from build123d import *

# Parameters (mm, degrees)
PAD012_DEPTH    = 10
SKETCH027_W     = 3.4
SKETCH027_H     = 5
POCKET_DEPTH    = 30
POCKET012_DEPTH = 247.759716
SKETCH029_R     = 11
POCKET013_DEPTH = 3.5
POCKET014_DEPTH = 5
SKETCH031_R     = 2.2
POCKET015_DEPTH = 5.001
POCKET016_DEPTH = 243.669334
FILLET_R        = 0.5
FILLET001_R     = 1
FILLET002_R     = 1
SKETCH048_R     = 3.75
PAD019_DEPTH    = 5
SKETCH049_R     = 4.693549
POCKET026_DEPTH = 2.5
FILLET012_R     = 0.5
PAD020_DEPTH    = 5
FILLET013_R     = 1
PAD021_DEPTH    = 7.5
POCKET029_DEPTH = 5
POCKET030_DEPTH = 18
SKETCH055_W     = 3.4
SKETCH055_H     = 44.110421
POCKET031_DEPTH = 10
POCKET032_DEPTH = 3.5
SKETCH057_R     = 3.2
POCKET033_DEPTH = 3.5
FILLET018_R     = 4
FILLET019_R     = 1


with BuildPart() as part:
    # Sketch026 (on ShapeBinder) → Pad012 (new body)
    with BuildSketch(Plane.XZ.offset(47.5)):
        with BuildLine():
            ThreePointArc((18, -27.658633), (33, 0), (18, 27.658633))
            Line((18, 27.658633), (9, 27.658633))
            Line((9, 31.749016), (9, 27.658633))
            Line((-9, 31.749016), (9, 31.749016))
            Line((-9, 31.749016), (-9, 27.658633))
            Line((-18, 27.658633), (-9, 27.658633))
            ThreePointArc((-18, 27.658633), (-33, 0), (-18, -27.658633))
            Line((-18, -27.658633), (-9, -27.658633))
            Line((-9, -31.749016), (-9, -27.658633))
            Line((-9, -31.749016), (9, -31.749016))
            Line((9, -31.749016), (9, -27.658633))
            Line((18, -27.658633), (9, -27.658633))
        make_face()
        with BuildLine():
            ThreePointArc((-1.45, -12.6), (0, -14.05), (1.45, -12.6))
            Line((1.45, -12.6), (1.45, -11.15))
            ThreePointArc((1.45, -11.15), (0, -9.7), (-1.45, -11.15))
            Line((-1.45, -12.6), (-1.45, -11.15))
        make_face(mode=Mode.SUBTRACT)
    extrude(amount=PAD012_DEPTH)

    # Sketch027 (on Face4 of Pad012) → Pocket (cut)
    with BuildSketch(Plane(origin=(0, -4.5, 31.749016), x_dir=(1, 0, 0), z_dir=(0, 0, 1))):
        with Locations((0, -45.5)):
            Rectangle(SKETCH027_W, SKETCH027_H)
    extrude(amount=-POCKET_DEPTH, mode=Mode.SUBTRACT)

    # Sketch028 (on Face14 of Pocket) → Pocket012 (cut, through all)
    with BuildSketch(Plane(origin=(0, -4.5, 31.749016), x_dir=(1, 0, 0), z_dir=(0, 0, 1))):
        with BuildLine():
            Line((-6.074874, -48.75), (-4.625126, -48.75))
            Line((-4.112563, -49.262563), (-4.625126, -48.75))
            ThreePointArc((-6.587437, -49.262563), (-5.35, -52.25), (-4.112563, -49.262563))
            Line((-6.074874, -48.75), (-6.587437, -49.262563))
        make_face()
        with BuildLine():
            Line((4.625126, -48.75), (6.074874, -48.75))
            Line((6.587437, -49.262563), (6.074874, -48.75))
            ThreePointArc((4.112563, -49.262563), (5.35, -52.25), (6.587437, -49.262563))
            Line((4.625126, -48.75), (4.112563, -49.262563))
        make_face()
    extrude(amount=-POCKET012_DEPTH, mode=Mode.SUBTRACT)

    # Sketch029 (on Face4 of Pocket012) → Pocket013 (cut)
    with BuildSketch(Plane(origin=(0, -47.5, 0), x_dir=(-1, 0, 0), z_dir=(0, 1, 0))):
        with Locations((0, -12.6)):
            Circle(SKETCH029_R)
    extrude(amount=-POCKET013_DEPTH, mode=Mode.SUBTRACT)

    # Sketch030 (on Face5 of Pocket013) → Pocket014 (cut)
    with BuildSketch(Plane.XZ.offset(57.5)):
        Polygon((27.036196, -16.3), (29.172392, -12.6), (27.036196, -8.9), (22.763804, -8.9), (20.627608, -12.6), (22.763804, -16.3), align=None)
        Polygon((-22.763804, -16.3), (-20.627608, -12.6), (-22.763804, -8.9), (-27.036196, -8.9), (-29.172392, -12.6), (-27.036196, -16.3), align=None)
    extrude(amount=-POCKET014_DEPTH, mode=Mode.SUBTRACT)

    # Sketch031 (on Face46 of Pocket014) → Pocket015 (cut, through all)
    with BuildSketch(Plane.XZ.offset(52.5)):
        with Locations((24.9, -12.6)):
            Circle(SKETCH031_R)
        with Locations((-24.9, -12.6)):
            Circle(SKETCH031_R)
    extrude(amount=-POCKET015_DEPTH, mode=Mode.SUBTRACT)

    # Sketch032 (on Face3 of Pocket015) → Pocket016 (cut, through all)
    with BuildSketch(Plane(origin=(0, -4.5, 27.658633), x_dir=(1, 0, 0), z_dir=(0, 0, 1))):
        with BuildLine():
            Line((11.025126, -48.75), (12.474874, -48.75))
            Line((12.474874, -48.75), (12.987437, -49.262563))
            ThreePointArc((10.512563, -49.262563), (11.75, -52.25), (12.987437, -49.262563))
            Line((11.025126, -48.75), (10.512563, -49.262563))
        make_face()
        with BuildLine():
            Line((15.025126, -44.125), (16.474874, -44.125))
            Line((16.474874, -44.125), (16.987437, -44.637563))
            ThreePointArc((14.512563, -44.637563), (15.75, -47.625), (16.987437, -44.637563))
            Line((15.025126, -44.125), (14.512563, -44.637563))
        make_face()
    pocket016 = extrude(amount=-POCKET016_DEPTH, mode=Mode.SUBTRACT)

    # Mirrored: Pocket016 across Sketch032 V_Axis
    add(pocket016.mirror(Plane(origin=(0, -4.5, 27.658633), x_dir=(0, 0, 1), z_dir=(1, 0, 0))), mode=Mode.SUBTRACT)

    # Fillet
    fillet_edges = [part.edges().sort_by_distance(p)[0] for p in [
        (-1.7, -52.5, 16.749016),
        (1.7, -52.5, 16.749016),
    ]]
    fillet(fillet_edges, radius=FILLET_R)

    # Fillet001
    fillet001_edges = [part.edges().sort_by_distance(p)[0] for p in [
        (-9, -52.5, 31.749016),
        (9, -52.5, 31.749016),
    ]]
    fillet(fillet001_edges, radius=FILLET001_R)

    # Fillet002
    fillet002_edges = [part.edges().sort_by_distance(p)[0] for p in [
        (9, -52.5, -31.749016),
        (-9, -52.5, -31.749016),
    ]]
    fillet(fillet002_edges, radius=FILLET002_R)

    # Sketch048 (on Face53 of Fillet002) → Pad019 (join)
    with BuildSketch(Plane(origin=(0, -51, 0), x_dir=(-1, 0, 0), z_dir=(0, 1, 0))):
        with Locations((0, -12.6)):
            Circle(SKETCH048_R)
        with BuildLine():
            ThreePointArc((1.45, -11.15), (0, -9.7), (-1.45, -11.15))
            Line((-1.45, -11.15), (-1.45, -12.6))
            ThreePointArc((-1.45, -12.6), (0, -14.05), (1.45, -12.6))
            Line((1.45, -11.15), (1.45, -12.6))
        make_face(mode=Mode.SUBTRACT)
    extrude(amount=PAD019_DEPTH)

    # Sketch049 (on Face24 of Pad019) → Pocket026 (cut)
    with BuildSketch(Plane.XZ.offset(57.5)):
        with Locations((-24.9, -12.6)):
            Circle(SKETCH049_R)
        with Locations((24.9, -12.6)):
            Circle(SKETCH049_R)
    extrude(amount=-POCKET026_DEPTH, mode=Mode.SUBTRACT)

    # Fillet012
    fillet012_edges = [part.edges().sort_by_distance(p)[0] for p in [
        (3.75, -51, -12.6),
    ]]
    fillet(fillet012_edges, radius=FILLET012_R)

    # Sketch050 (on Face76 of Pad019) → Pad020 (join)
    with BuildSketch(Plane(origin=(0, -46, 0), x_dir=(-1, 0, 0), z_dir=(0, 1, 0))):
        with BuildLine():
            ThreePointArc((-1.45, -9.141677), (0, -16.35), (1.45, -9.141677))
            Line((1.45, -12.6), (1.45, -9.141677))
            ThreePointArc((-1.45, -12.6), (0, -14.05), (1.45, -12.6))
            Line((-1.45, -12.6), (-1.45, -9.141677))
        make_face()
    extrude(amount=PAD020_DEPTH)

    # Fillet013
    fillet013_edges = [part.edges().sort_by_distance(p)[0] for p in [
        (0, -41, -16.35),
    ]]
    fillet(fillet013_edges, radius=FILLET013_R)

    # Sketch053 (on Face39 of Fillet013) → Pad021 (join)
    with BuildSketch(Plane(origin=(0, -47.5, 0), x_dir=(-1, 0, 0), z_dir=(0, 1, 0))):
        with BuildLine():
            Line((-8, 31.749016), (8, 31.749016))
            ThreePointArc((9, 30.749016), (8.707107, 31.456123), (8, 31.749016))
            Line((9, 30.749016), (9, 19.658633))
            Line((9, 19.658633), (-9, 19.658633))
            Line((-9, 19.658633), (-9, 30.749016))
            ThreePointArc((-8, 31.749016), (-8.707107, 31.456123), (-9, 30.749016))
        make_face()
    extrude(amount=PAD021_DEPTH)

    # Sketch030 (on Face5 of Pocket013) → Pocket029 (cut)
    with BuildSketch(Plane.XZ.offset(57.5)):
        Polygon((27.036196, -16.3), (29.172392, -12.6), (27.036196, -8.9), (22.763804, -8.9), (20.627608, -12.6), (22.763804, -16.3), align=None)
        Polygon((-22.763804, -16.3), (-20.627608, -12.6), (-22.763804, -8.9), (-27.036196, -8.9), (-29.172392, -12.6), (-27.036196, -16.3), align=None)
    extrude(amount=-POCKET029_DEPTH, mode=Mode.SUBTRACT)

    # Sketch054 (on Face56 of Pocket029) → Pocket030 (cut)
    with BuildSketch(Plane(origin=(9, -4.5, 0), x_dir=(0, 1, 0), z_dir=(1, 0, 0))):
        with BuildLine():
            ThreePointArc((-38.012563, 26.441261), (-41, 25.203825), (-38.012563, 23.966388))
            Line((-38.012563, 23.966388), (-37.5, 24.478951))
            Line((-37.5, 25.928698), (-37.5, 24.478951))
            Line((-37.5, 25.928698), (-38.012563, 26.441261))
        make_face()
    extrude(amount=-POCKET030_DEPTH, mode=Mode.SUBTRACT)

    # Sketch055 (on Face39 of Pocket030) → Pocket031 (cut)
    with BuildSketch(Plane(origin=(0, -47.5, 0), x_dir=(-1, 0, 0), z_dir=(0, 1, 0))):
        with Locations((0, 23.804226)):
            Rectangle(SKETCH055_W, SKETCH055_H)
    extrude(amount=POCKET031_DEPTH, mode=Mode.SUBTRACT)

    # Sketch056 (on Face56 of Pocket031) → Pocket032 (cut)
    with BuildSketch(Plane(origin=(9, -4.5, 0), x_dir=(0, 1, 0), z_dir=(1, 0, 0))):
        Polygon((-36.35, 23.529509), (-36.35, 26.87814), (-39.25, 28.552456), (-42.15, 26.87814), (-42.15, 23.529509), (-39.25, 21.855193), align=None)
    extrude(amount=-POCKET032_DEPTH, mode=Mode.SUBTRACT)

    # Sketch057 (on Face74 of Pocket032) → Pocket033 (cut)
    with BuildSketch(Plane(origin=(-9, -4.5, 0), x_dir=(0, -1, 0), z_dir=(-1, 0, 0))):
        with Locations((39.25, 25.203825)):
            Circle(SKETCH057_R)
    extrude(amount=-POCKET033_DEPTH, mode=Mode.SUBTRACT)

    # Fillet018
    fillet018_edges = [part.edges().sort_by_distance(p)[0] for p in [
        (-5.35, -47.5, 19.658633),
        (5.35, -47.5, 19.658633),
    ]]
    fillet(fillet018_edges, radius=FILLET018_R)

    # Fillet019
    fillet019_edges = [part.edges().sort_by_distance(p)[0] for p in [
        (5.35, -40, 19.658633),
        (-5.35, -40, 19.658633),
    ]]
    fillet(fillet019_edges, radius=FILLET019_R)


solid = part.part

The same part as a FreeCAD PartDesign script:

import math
import FreeCAD as App
import Part
import Sketcher
from FreeCAD import Vector
Q = App.Units.Quantity


def edges_at(feature, points):
    """Names of the edges that pass closest to the given points."""
    edges = feature.Shape.Edges
    near = lambda p: min(range(len(edges)), key=lambda i: edges[i].distToShape(Part.Vertex(*p))[0])
    return sorted({f"Edge{near(p) + 1}" for p in points})


def add_polygon(sketch, points):
    """Adds a closed chain of lines whose ends are joined by coincident constraints."""
    first, n = sketch.GeometryCount, len(points)
    for a, b in zip(points, points[1:] + points[:1]):
        sketch.addGeometry(Part.LineSegment(App.Vector(*a, 0), App.Vector(*b, 0)), False)
    for i in range(n):
        sketch.addConstraint(Sketcher.Constraint("Coincident", first + i, 2, first + (i + 1) % n, 1))

doc = App.newDocument("Part")
body = doc.addObject("PartDesign::Body", "Body")

# Sketch on XZ plane
sketch1 = doc.addObject("Sketcher::SketchObject", "Sketch")
body.addObject(sketch1)
sketch1.AttachmentSupport = (doc.XZ_Plane, [""])
sketch1.MapMode = "FlatFace"
sketch1.AttachmentOffset = App.Placement(Vector(0, 0, 47.5), App.Rotation())
sketch1.addGeometry(Part.ArcOfCircle(Part.Circle(Vector(0, 0, 0), Vector(0, 0, 1), 33), math.radians(-57), math.radians(57)), False)
sketch1.addGeometry(Part.LineSegment(Vector(18, 27.7, 0), Vector(9, 27.7, 0)), False)
sketch1.addGeometry(Part.LineSegment(Vector(9, 27.7, 0), Vector(9, 31.7, 0)), False)
sketch1.addGeometry(Part.LineSegment(Vector(9, 31.7, 0), Vector(-9, 31.7, 0)), False)
sketch1.addGeometry(Part.LineSegment(Vector(-9, 31.7, 0), Vector(-9, 27.7, 0)), False)
sketch1.addGeometry(Part.LineSegment(Vector(-9, 27.7, 0), Vector(-18, 27.7, 0)), False)
sketch1.addGeometry(Part.ArcOfCircle(Part.Circle(Vector(0, 0, 0), Vector(0, 0, 1), 33), math.radians(123), math.radians(237)), False)
sketch1.addGeometry(Part.LineSegment(Vector(-18, -27.7, 0), Vector(-9, -27.7, 0)), False)
sketch1.addGeometry(Part.LineSegment(Vector(-9, -27.7, 0), Vector(-9, -31.7, 0)), False)
sketch1.addGeometry(Part.LineSegment(Vector(-9, -31.7, 0), Vector(9, -31.7, 0)), False)
sketch1.addGeometry(Part.LineSegment(Vector(9, -31.7, 0), Vector(9, -27.7, 0)), False)
sketch1.addGeometry(Part.LineSegment(Vector(9, -27.7, 0), Vector(18, -27.7, 0)), False)
sketch1.addGeometry(Part.ArcOfCircle(Part.Circle(Vector(0, -12.6, 0), Vector(0, 0, 1), 1.4), math.radians(180), math.radians(360)), False)
sketch1.addGeometry(Part.LineSegment(Vector(-1.4, -12.6, 0), Vector(-1.4, -11.2, 0)), False)
sketch1.addGeometry(Part.ArcOfCircle(Part.Circle(Vector(0, -11.2, 0), Vector(0, 0, 1), 1.4), math.radians(0), math.radians(180)), False)
sketch1.addGeometry(Part.LineSegment(Vector(1.4, -11.2, 0), Vector(1.4, -12.6, 0)), False)
sketch1.addConstraint(Sketcher.Constraint("Coincident", 0, 2, 1, 1))
sketch1.addConstraint(Sketcher.Constraint("Coincident", 1, 2, 2, 1))
sketch1.addConstraint(Sketcher.Constraint("Coincident", 2, 2, 3, 1))
sketch1.addConstraint(Sketcher.Constraint("Coincident", 3, 2, 4, 1))
sketch1.addConstraint(Sketcher.Constraint("Coincident", 4, 2, 5, 1))
sketch1.addConstraint(Sketcher.Constraint("Coincident", 5, 2, 6, 1))
sketch1.addConstraint(Sketcher.Constraint("Coincident", 6, 2, 7, 1))
sketch1.addConstraint(Sketcher.Constraint("Coincident", 7, 2, 8, 1))
sketch1.addConstraint(Sketcher.Constraint("Coincident", 8, 2, 9, 1))
sketch1.addConstraint(Sketcher.Constraint("Coincident", 9, 2, 10, 1))
sketch1.addConstraint(Sketcher.Constraint("Coincident", 10, 2, 11, 1))
sketch1.addConstraint(Sketcher.Constraint("Coincident", 11, 2, 0, 1))
sketch1.addConstraint(Sketcher.Constraint("Tangent", 12, 1, 13, 1))
sketch1.addConstraint(Sketcher.Constraint("Tangent", 13, 2, 14, 2))
sketch1.addConstraint(Sketcher.Constraint("Tangent", 14, 1, 15, 1))
sketch1.addConstraint(Sketcher.Constraint("Tangent", 15, 2, 12, 2))
sketch1.addConstraint(Sketcher.Constraint("Horizontal", 1))
sketch1.addConstraint(Sketcher.Constraint("Vertical", 2))
sketch1.addConstraint(Sketcher.Constraint("Horizontal", 3))
sketch1.addConstraint(Sketcher.Constraint("Vertical", 4))
sketch1.addConstraint(Sketcher.Constraint("Horizontal", 5))
sketch1.addConstraint(Sketcher.Constraint("Horizontal", 7))
sketch1.addConstraint(Sketcher.Constraint("Vertical", 8))
sketch1.addConstraint(Sketcher.Constraint("Horizontal", 9))
sketch1.addConstraint(Sketcher.Constraint("Vertical", 10))
sketch1.addConstraint(Sketcher.Constraint("Horizontal", 11))
sketch1.addConstraint(Sketcher.Constraint("Vertical", 13))
sketch1.addConstraint(Sketcher.Constraint("Vertical", 15))
sketch1.addConstraint(Sketcher.Constraint("Coincident", 0, 3, -1, 1))
sketch1.addConstraint(Sketcher.Constraint("Coincident", 6, 3, -1, 1))
sketch1.addConstraint(Sketcher.Constraint("Equal", 0, 6))
sketch1.addConstraint(Sketcher.Constraint("Symmetric", 1, 2, 7, 2, -1, 1))
sketch1.addConstraint(Sketcher.Constraint("Symmetric", 3, 2, 9, 2, -1, 1))
sketch1.addConstraint(Sketcher.Constraint("Symmetric", 1, 2, 4, 2, -2))
sketch1.addConstraint(Sketcher.Constraint("PointOnObject", 12, 3, -2))
sketch1.addConstraint(Sketcher.Constraint("Horizontal", 7, 2, 10, 2))
sketch1.addConstraint(Sketcher.Constraint("Radius", 0, 32.999999))
sketch1.addConstraint(Sketcher.Constraint("DistanceX", 1, 2, 1, 1, 9.0))
sketch1.addConstraint(Sketcher.Constraint("DistanceX", 3, 2, 3, 1, 18.0))
sketch1.addConstraint(Sketcher.Constraint("Radius", 12, 1.45))
sketch1.addConstraint(Sketcher.Constraint("DistanceY", 13, 1, 13, 2, 1.45))
sketch1.addConstraint(Sketcher.Constraint("DistanceY", 12, 3, -1, 1, 12.6))
sketch1.addConstraint(Sketcher.Constraint("DistanceY", 2, 1, 2, 2, 4.090383))
pad1 = doc.addObject("PartDesign::Pad", "Pad")
body.addObject(pad1)
pad1.Profile = sketch1
pad1.Length = 10

# Sketch on XY plane
sketch2 = doc.addObject("Sketcher::SketchObject", "Sketch001")
body.addObject(sketch2)
sketch2.AttachmentSupport = (doc.XY_Plane, [""])
sketch2.MapMode = "FlatFace"
sketch2.AttachmentOffset = App.Placement(Vector(0, 0, 31.749016), App.Rotation())
add_polygon(sketch2, [(-1.7, -47.5), (-1.7, -52.5), (1.7, -52.5), (1.7, -47.5)])  # lines 0-3
sketch2.addConstraint(Sketcher.Constraint("Vertical", 0))
sketch2.addConstraint(Sketcher.Constraint("Horizontal", 1))
sketch2.addConstraint(Sketcher.Constraint("Vertical", 2))
sketch2.addConstraint(Sketcher.Constraint("Horizontal", 3))
sketch2.addConstraint(Sketcher.Constraint("DistanceY", 0, 2, 0, 1, 5.0))
sketch2.addConstraint(Sketcher.Constraint("DistanceX", 1, 1, 1, 2, 3.4))
sketch2.addConstraint(Sketcher.Constraint("DistanceX", 0, 2, -1, 1, 1.7))
sketch2.addConstraint(Sketcher.Constraint("DistanceY", 0, 2, -1, 1, 52.5))
pocket1 = doc.addObject("PartDesign::Pocket", "Pocket")
body.addObject(pocket1)
pocket1.Profile = sketch2
pocket1.Length = 30

# Sketch on XY plane
sketch3 = doc.addObject("Sketcher::SketchObject", "Sketch002")
body.addObject(sketch3)
sketch3.AttachmentSupport = (doc.XY_Plane, [""])
sketch3.MapMode = "FlatFace"
sketch3.AttachmentOffset = App.Placement(Vector(0, 0, 31.749016), App.Rotation())
sketch3.addGeometry(Part.LineSegment(Vector(-4.6, -53.2, 0), Vector(-6.1, -53.2, 0)), False)
sketch3.addGeometry(Part.LineSegment(Vector(-6.1, -53.2, 0), Vector(-6.6, -53.8, 0)), False)
sketch3.addGeometry(Part.ArcOfCircle(Part.Circle(Vector(-5.3, -55, 0), Vector(0, 0, 1), 1.8), math.radians(135), math.radians(405)), False)
sketch3.addGeometry(Part.LineSegment(Vector(-4.1, -53.8, 0), Vector(-4.6, -53.2, 0)), False)
sketch3.addGeometry(Part.LineSegment(Vector(6.1, -53.2, 0), Vector(4.6, -53.2, 0)), False)
sketch3.addGeometry(Part.LineSegment(Vector(4.6, -53.2, 0), Vector(4.1, -53.8, 0)), False)
sketch3.addGeometry(Part.ArcOfCircle(Part.Circle(Vector(5.3, -55, 0), Vector(0, 0, 1), 1.8), math.radians(135), math.radians(405)), False)
sketch3.addGeometry(Part.LineSegment(Vector(6.6, -53.8, 0), Vector(6.1, -53.2, 0)), False)
sketch3.addConstraint(Sketcher.Constraint("Coincident", 0, 2, 1, 1))
sketch3.addConstraint(Sketcher.Constraint("Tangent", 1, 2, 2, 1))
sketch3.addConstraint(Sketcher.Constraint("Tangent", 2, 2, 3, 1))
sketch3.addConstraint(Sketcher.Constraint("Coincident", 3, 2, 0, 1))
sketch3.addConstraint(Sketcher.Constraint("Coincident", 4, 2, 5, 1))
sketch3.addConstraint(Sketcher.Constraint("Tangent", 5, 2, 6, 1))
sketch3.addConstraint(Sketcher.Constraint("Tangent", 6, 2, 7, 1))
sketch3.addConstraint(Sketcher.Constraint("Coincident", 7, 2, 4, 1))
sketch3.addConstraint(Sketcher.Constraint("Horizontal", 0))
sketch3.addConstraint(Sketcher.Constraint("Horizontal", 4))
sketch3.addConstraint(Sketcher.Constraint("Equal", 2, 6))
sketch3.addConstraint(Sketcher.Constraint("Symmetric", 2, 3, 6, 3, -2))
sketch3.addConstraint(Sketcher.Constraint("Symmetric", 3, 2, 4, 2, -2))
sketch3.addConstraint(Sketcher.Constraint("Perpendicular", 1, 3))
sketch3.addConstraint(Sketcher.Constraint("Perpendicular", 3, 5))
sketch3.addConstraint(Sketcher.Constraint("Perpendicular", 5, 7))
sketch3.addConstraint(Sketcher.Constraint("Radius", 2, 1.75))
sketch3.addConstraint(Sketcher.Constraint("DistanceY", 2, 3, -1, 1, 55.0))
sketch3.addConstraint(Sketcher.Constraint("DistanceX", 2, 3, 6, 3, 10.7))
sketch3.addConstraint(Sketcher.Constraint("DistanceY", 0, 2, -1, 1, 53.25))
pocket2 = doc.addObject("PartDesign::Pocket", "Pocket001")
body.addObject(pocket2)
pocket2.Profile = sketch3
pocket2.Type = "ThroughAll"

# Sketch on XZ plane
sketch4 = doc.addObject("Sketcher::SketchObject", "Sketch003")
body.addObject(sketch4)
sketch4.AttachmentSupport = (doc.XZ_Plane, [""])
sketch4.MapMode = "FlatFace"
sketch4.AttachmentOffset = App.Placement(Vector(0, 0, 47.5), App.Rotation())
sketch4.addGeometry(Part.Circle(Vector(0, -13, 0), Vector(0, 0, 1), 11), False)
sketch4.addConstraint(Sketcher.Constraint("PointOnObject", 0, 3, -2))
sketch4.addConstraint(Sketcher.Constraint("Diameter", 0, 22.0))
sketch4.addConstraint(Sketcher.Constraint("DistanceY", 0, 3, -1, 1, 12.6))
pocket3 = doc.addObject("PartDesign::Pocket", "Pocket002")
body.addObject(pocket3)
pocket3.Profile = sketch4
pocket3.Length = 3.5
pocket3.Reversed = True

# Sketch on XZ plane
sketch5 = doc.addObject("Sketcher::SketchObject", "Sketch004")
body.addObject(sketch5)
sketch5.AttachmentSupport = (doc.XZ_Plane, [""])
sketch5.MapMode = "FlatFace"
sketch5.AttachmentOffset = App.Placement(Vector(0, 0, 57.5), App.Rotation())
add_polygon(sketch5, [(27, -16.3), (29.2, -12.6), (27, -8.9), (22.8, -8.9), (20.6, -12.6), (22.8, -16.3)])  # lines 0-5
add_polygon(sketch5, [(-22.8, -16.3), (-20.6, -12.6), (-22.8, -8.9), (-27, -8.9), (-29.2, -12.6), (-27, -16.3)])  # lines 6-11
sketch5.addConstraint(Sketcher.Constraint("Horizontal", 2))
sketch5.addConstraint(Sketcher.Constraint("Horizontal", 5))
sketch5.addConstraint(Sketcher.Constraint("Horizontal", 8))
sketch5.addConstraint(Sketcher.Constraint("Horizontal", 11))
sketch5.addConstraint(Sketcher.Constraint("Symmetric", 3, 2, 6, 2, -2))
sketch5.addConstraint(Sketcher.Constraint("Symmetric", 2, 2, 7, 2, -2))
sketch5.addConstraint(Sketcher.Constraint("Symmetric", 0, 2, 9, 2, -2))
sketch5.addConstraint(Sketcher.Constraint("Symmetric", 5, 2, 10, 2, -2))
sketch5.addConstraint(Sketcher.Constraint("Parallel", 0, 3))
sketch5.addConstraint(Sketcher.Constraint("Parallel", 1, 4))
sketch5.addConstraint(Sketcher.Constraint("Parallel", 3, 6))
sketch5.addConstraint(Sketcher.Constraint("Parallel", 4, 7))
sketch5.addConstraint(Sketcher.Constraint("Parallel", 6, 9))
sketch5.addConstraint(Sketcher.Constraint("Horizontal", 0, 2, 3, 2))
sketch5.addConstraint(Sketcher.Constraint("Vertical", 2, 2, 4, 2))
sketch5.addConstraint(Sketcher.Constraint("Angle", 0, Q("60 deg")))
sketch5.addConstraint(Sketcher.Constraint("DistanceY", 0, 2, -1, 1, 12.6))
sketch5.addConstraint(Sketcher.Constraint("DistanceY", 1, 2, -1, 1, 8.9))
sketch5.addConstraint(Sketcher.Constraint("DistanceX", 7, 2, 1, 2, 49.8))
sketch5.addConstraint(Sketcher.Constraint("DistanceX", 2, 2, 2, 1, 4.272392))
pocket4 = doc.addObject("PartDesign::Pocket", "Pocket003")
body.addObject(pocket4)
pocket4.Profile = sketch5
pocket4.Length = 5

# Sketch on XZ plane
sketch6 = doc.addObject("Sketcher::SketchObject", "Sketch005")
body.addObject(sketch6)
sketch6.AttachmentSupport = (doc.XZ_Plane, [""])
sketch6.MapMode = "FlatFace"
sketch6.AttachmentOffset = App.Placement(Vector(0, 0, 52.5), App.Rotation())
sketch6.addGeometry(Part.Circle(Vector(24.9, -12.6, 0), Vector(0, 0, 1), 2.2), False)
sketch6.addGeometry(Part.Circle(Vector(-24.9, -12.6, 0), Vector(0, 0, 1), 2.2), False)
sketch6.addConstraint(Sketcher.Constraint("Equal", 0, 1))
sketch6.addConstraint(Sketcher.Constraint("Symmetric", 0, 3, 1, 3, -2))
sketch6.addConstraint(Sketcher.Constraint("Diameter", 0, 4.4))
sketch6.addConstraint(Sketcher.Constraint("DistanceX", -1, 1, 0, 3, 24.9))
sketch6.addConstraint(Sketcher.Constraint("DistanceY", 0, 3, -1, 1, 12.6))
pocket5 = doc.addObject("PartDesign::Pocket", "Pocket004")
body.addObject(pocket5)
pocket5.Profile = sketch6
pocket5.Type = "ThroughAll"

# Sketch on XY plane
sketch7 = doc.addObject("Sketcher::SketchObject", "Sketch006")
body.addObject(sketch7)
sketch7.AttachmentSupport = (doc.XY_Plane, [""])
sketch7.MapMode = "FlatFace"
sketch7.AttachmentOffset = App.Placement(Vector(0, 0, 27.658633), App.Rotation())
sketch7.addGeometry(Part.LineSegment(Vector(12.5, -53.2, 0), Vector(11, -53.2, 0)), False)
sketch7.addGeometry(Part.LineSegment(Vector(11, -53.2, 0), Vector(10.5, -53.8, 0)), False)
sketch7.addGeometry(Part.ArcOfCircle(Part.Circle(Vector(11.8, -55, 0), Vector(0, 0, 1), 1.8), math.radians(135), math.radians(405)), False)
sketch7.addGeometry(Part.LineSegment(Vector(13, -53.8, 0), Vector(12.5, -53.2, 0)), False)
sketch7.addGeometry(Part.LineSegment(Vector(16.5, -48.6, 0), Vector(15, -48.6, 0)), False)
sketch7.addGeometry(Part.LineSegment(Vector(15, -48.6, 0), Vector(14.5, -49.1, 0)), False)
sketch7.addGeometry(Part.ArcOfCircle(Part.Circle(Vector(15.8, -50.4, 0), Vector(0, 0, 1), 1.8), math.radians(135), math.radians(405)), False)
sketch7.addGeometry(Part.LineSegment(Vector(17, -49.1, 0), Vector(16.5, -48.6, 0)), False)
sketch7.addConstraint(Sketcher.Constraint("Coincident", 0, 2, 1, 1))
sketch7.addConstraint(Sketcher.Constraint("Tangent", 1, 2, 2, 1))
sketch7.addConstraint(Sketcher.Constraint("Tangent", 2, 2, 3, 1))
sketch7.addConstraint(Sketcher.Constraint("Coincident", 3, 2, 0, 1))
sketch7.addConstraint(Sketcher.Constraint("Coincident", 4, 2, 5, 1))
sketch7.addConstraint(Sketcher.Constraint("Tangent", 5, 2, 6, 1))
sketch7.addConstraint(Sketcher.Constraint("Tangent", 6, 2, 7, 1))
sketch7.addConstraint(Sketcher.Constraint("Coincident", 7, 2, 4, 1))
sketch7.addConstraint(Sketcher.Constraint("Horizontal", 0))
sketch7.addConstraint(Sketcher.Constraint("Horizontal", 4))
sketch7.addConstraint(Sketcher.Constraint("Equal", 2, 6))
sketch7.addConstraint(Sketcher.Constraint("Perpendicular", 1, 3))
sketch7.addConstraint(Sketcher.Constraint("Perpendicular", 3, 5))
sketch7.addConstraint(Sketcher.Constraint("Perpendicular", 5, 7))
sketch7.addConstraint(Sketcher.Constraint("Horizontal", 1, 2, 2, 2))
sketch7.addConstraint(Sketcher.Constraint("Equal", 0, 4))
sketch7.addConstraint(Sketcher.Constraint("Radius", 2, 1.75))
sketch7.addConstraint(Sketcher.Constraint("DistanceY", 2, 3, -1, 1, 55.0))
sketch7.addConstraint(Sketcher.Constraint("DistanceX", 2, 3, 6, 3, 4.0))
sketch7.addConstraint(Sketcher.Constraint("DistanceX", -1, 1, 2, 3, 11.75))
sketch7.addConstraint(Sketcher.Constraint("DistanceY", 0, 2, -1, 1, 53.25))
sketch7.addConstraint(Sketcher.Constraint("DistanceY", 6, 3, -1, 1, 50.375))
pocket6 = doc.addObject("PartDesign::Pocket", "Pocket005")
body.addObject(pocket6)
pocket6.Profile = sketch7
pocket6.Type = "ThroughAll"
doc.recompute()

mirrored = doc.addObject("PartDesign::Mirrored", "Mirrored")
body.addObject(mirrored)
mirrored.Originals = [pocket6]
mirrored.MirrorPlane = (doc.YZ_Plane, [""])
body.Tip = mirrored
doc.recompute()

fillet = doc.addObject("PartDesign::Fillet", "Fillet")
body.addObject(fillet)
fillet.Base = (mirrored, edges_at(mirrored, [(-1.7, -52.5, 16.749), (1.7, -52.5, 16.749)]))
fillet.Radius = 0.5
doc.recompute()

fillet2 = doc.addObject("PartDesign::Fillet", "Fillet001")
body.addObject(fillet2)
fillet2.Base = (fillet, edges_at(fillet, [(-9, -52.5, 31.749), (9, -52.5, 31.749)]))
fillet2.Radius = 1
doc.recompute()

fillet3 = doc.addObject("PartDesign::Fillet", "Fillet002")
body.addObject(fillet3)
fillet3.Base = (fillet2, edges_at(fillet2, [(9, -52.5, -31.749), (-9, -52.5, -31.749)]))
fillet3.Radius = 1

# Sketch on XZ plane
sketch8 = doc.addObject("Sketcher::SketchObject", "Sketch007")
body.addObject(sketch8)
sketch8.AttachmentSupport = (doc.XZ_Plane, [""])
sketch8.MapMode = "FlatFace"
sketch8.AttachmentOffset = App.Placement(Vector(0, 0, 51), App.Rotation())
sketch8.addGeometry(Part.Circle(Vector(0, -12.6, 0), Vector(0, 0, 1), 3.8), False)
sketch8.addGeometry(Part.ArcOfCircle(Part.Circle(Vector(0, -11.2, 0), Vector(0, 0, 1), 1.4), math.radians(0), math.radians(180)), False)
sketch8.addGeometry(Part.LineSegment(Vector(-1.4, -11.2, 0), Vector(-1.4, -12.6, 0)), False)
sketch8.addGeometry(Part.ArcOfCircle(Part.Circle(Vector(0, -12.6, 0), Vector(0, 0, 1), 1.4), math.radians(180), math.radians(360)), False)
sketch8.addGeometry(Part.LineSegment(Vector(1.4, -12.6, 0), Vector(1.4, -11.2, 0)), False)
sketch8.addConstraint(Sketcher.Constraint("Tangent", 1, 2, 2, 1))
sketch8.addConstraint(Sketcher.Constraint("Tangent", 2, 2, 3, 1))
sketch8.addConstraint(Sketcher.Constraint("Tangent", 3, 2, 4, 1))
sketch8.addConstraint(Sketcher.Constraint("Tangent", 4, 2, 1, 1))
sketch8.addConstraint(Sketcher.Constraint("Vertical", 2))
sketch8.addConstraint(Sketcher.Constraint("Vertical", 4))
sketch8.addConstraint(Sketcher.Constraint("Coincident", 3, 3, 0, 3))
sketch8.addConstraint(Sketcher.Constraint("PointOnObject", 0, 3, -2))
sketch8.addConstraint(Sketcher.Constraint("Diameter", 0, 7.5))
sketch8.addConstraint(Sketcher.Constraint("Radius", 1, 1.45))
sketch8.addConstraint(Sketcher.Constraint("DistanceY", 2, 2, 2, 1, 1.45))
sketch8.addConstraint(Sketcher.Constraint("DistanceY", 0, 3, -1, 1, 12.6))
pad2 = doc.addObject("PartDesign::Pad", "Pad001")
body.addObject(pad2)
pad2.Profile = sketch8
pad2.Length = 5
pad2.Reversed = True

# Sketch on XZ plane
sketch9 = doc.addObject("Sketcher::SketchObject", "Sketch008")
body.addObject(sketch9)
sketch9.AttachmentSupport = (doc.XZ_Plane, [""])
sketch9.MapMode = "FlatFace"
sketch9.AttachmentOffset = App.Placement(Vector(0, 0, 57.5), App.Rotation())
sketch9.addGeometry(Part.Circle(Vector(-24.9, -12.6, 0), Vector(0, 0, 1), 4.7), False)
sketch9.addGeometry(Part.Circle(Vector(24.9, -12.6, 0), Vector(0, 0, 1), 4.7), False)
sketch9.addConstraint(Sketcher.Constraint("Equal", 0, 1))
sketch9.addConstraint(Sketcher.Constraint("Symmetric", 0, 3, 1, 3, -2))
sketch9.addConstraint(Sketcher.Constraint("DistanceX", 0, 3, -1, 1, 24.9))
sketch9.addConstraint(Sketcher.Constraint("DistanceY", 0, 3, -1, 1, 12.6))
sketch9.addConstraint(Sketcher.Constraint("Diameter", 0, 9.387098))
pocket7 = doc.addObject("PartDesign::Pocket", "Pocket006")
body.addObject(pocket7)
pocket7.Profile = sketch9
pocket7.Length = 2.5
doc.recompute()

fillet4 = doc.addObject("PartDesign::Fillet", "Fillet003")
body.addObject(fillet4)
fillet4.Base = (pocket7, edges_at(pocket7, [(3.75, -51, -12.6)]))
fillet4.Radius = 0.5

# Sketch on XZ plane
sketch10 = doc.addObject("Sketcher::SketchObject", "Sketch009")
body.addObject(sketch10)
sketch10.AttachmentSupport = (doc.XZ_Plane, [""])
sketch10.MapMode = "FlatFace"
sketch10.AttachmentOffset = App.Placement(Vector(0, 0, 46), App.Rotation())
sketch10.addGeometry(Part.ArcOfCircle(Part.Circle(Vector(0, -12.6, 0), Vector(0, 0, 1), 3.7), math.radians(113), math.radians(427)), False)
sketch10.addGeometry(Part.LineSegment(Vector(-1.4, -9.1, 0), Vector(-1.4, -12.6, 0)), False)
sketch10.addGeometry(Part.ArcOfCircle(Part.Circle(Vector(0, -12.6, 0), Vector(0, 0, 1), 1.4), math.radians(180), math.radians(360)), False)
sketch10.addGeometry(Part.LineSegment(Vector(1.4, -12.6, 0), Vector(1.4, -9.1, 0)), False)
sketch10.addConstraint(Sketcher.Constraint("Coincident", 0, 1, 1, 1))
sketch10.addConstraint(Sketcher.Constraint("Tangent", 1, 2, 2, 1))
sketch10.addConstraint(Sketcher.Constraint("Tangent", 2, 2, 3, 1))
sketch10.addConstraint(Sketcher.Constraint("Coincident", 3, 2, 0, 2))
sketch10.addConstraint(Sketcher.Constraint("Vertical", 1))
sketch10.addConstraint(Sketcher.Constraint("Vertical", 3))
sketch10.addConstraint(Sketcher.Constraint("Coincident", 2, 3, 0, 3))
sketch10.addConstraint(Sketcher.Constraint("PointOnObject", 0, 3, -2))
sketch10.addConstraint(Sketcher.Constraint("Radius", 0, 3.75))
sketch10.addConstraint(Sketcher.Constraint("Radius", 2, 1.45))
sketch10.addConstraint(Sketcher.Constraint("DistanceY", 0, 3, -1, 1, 12.6))
pad3 = doc.addObject("PartDesign::Pad", "Pad002")
body.addObject(pad3)
pad3.Profile = sketch10
pad3.Length = 5
pad3.Reversed = True
doc.recompute()

fillet5 = doc.addObject("PartDesign::Fillet", "Fillet004")
body.addObject(fillet5)
fillet5.Base = (pad3, edges_at(pad3, [(0, -41, -16.35)]))
fillet5.Radius = 1

# Sketch on XZ plane
sketch11 = doc.addObject("Sketcher::SketchObject", "Sketch010")
body.addObject(sketch11)
sketch11.AttachmentSupport = (doc.XZ_Plane, [""])
sketch11.MapMode = "FlatFace"
sketch11.AttachmentOffset = App.Placement(Vector(0, 0, 47.5), App.Rotation())
sketch11.addGeometry(Part.LineSegment(Vector(-8, 31.7, 0), Vector(8, 31.7, 0)), False)
sketch11.addGeometry(Part.ArcOfCircle(Part.Circle(Vector(8, 30.7, 0), Vector(0, 0, 1), 1), math.radians(0), math.radians(90)), False)
sketch11.addGeometry(Part.LineSegment(Vector(9, 30.7, 0), Vector(9, 19.7, 0)), False)
sketch11.addGeometry(Part.LineSegment(Vector(9, 19.7, 0), Vector(-9, 19.7, 0)), False)
sketch11.addGeometry(Part.LineSegment(Vector(-9, 19.7, 0), Vector(-9, 30.7, 0)), False)
sketch11.addGeometry(Part.ArcOfCircle(Part.Circle(Vector(-8, 30.7, 0), Vector(0, 0, 1), 1), math.radians(90), math.radians(180)), False)
sketch11.addConstraint(Sketcher.Constraint("Tangent", 0, 2, 1, 2))
sketch11.addConstraint(Sketcher.Constraint("Tangent", 1, 1, 2, 1))
sketch11.addConstraint(Sketcher.Constraint("Coincident", 2, 2, 3, 1))
sketch11.addConstraint(Sketcher.Constraint("Coincident", 3, 2, 4, 1))
sketch11.addConstraint(Sketcher.Constraint("Tangent", 4, 2, 5, 2))
sketch11.addConstraint(Sketcher.Constraint("Tangent", 5, 1, 0, 1))
sketch11.addConstraint(Sketcher.Constraint("Horizontal", 0))
sketch11.addConstraint(Sketcher.Constraint("Vertical", 2))
sketch11.addConstraint(Sketcher.Constraint("Horizontal", 3))
sketch11.addConstraint(Sketcher.Constraint("Vertical", 4))
sketch11.addConstraint(Sketcher.Constraint("Equal", 1, 5))
sketch11.addConstraint(Sketcher.Constraint("Radius", 1, 0.999999))
sketch11.addConstraint(Sketcher.Constraint("DistanceX", 0, 1, 0, 2, 16.0))
sketch11.addConstraint(Sketcher.Constraint("DistanceX", -1, 1, 1, 3, 8.000001))
sketch11.addConstraint(Sketcher.Constraint("DistanceY", 2, 2, 2, 1, 11.090383))
sketch11.addConstraint(Sketcher.Constraint("DistanceY", -1, 1, 1, 3, 30.749017))
pad4 = doc.addObject("PartDesign::Pad", "Pad003")
body.addObject(pad4)
pad4.Profile = sketch11
pad4.Length = 7.5
pad4.Reversed = True

# Sketch on XZ plane
sketch12 = doc.addObject("Sketcher::SketchObject", "Sketch011")
body.addObject(sketch12)
sketch12.AttachmentSupport = (doc.XZ_Plane, [""])
sketch12.MapMode = "FlatFace"
sketch12.AttachmentOffset = App.Placement(Vector(0, 0, 57.5), App.Rotation())
add_polygon(sketch12, [(27, -16.3), (29.2, -12.6), (27, -8.9), (22.8, -8.9), (20.6, -12.6), (22.8, -16.3)])  # lines 0-5
add_polygon(sketch12, [(-22.8, -16.3), (-20.6, -12.6), (-22.8, -8.9), (-27, -8.9), (-29.2, -12.6), (-27, -16.3)])  # lines 6-11
sketch12.addConstraint(Sketcher.Constraint("Horizontal", 2))
sketch12.addConstraint(Sketcher.Constraint("Horizontal", 5))
sketch12.addConstraint(Sketcher.Constraint("Horizontal", 8))
sketch12.addConstraint(Sketcher.Constraint("Horizontal", 11))
sketch12.addConstraint(Sketcher.Constraint("Symmetric", 3, 2, 6, 2, -2))
sketch12.addConstraint(Sketcher.Constraint("Symmetric", 2, 2, 7, 2, -2))
sketch12.addConstraint(Sketcher.Constraint("Symmetric", 0, 2, 9, 2, -2))
sketch12.addConstraint(Sketcher.Constraint("Symmetric", 5, 2, 10, 2, -2))
sketch12.addConstraint(Sketcher.Constraint("Parallel", 0, 3))
sketch12.addConstraint(Sketcher.Constraint("Parallel", 1, 4))
sketch12.addConstraint(Sketcher.Constraint("Parallel", 3, 6))
sketch12.addConstraint(Sketcher.Constraint("Parallel", 4, 7))
sketch12.addConstraint(Sketcher.Constraint("Parallel", 6, 9))
sketch12.addConstraint(Sketcher.Constraint("Horizontal", 0, 2, 3, 2))
sketch12.addConstraint(Sketcher.Constraint("Vertical", 2, 2, 4, 2))
sketch12.addConstraint(Sketcher.Constraint("Angle", 0, Q("60 deg")))
sketch12.addConstraint(Sketcher.Constraint("DistanceY", 0, 2, -1, 1, 12.6))
sketch12.addConstraint(Sketcher.Constraint("DistanceY", 1, 2, -1, 1, 8.9))
sketch12.addConstraint(Sketcher.Constraint("DistanceX", 7, 2, 1, 2, 49.8))
sketch12.addConstraint(Sketcher.Constraint("DistanceX", 2, 2, 2, 1, 4.272392))
pocket8 = doc.addObject("PartDesign::Pocket", "Pocket007")
body.addObject(pocket8)
pocket8.Profile = sketch12
pocket8.Length = 5

# Sketch on YZ plane
sketch13 = doc.addObject("Sketcher::SketchObject", "Sketch012")
body.addObject(sketch13)
sketch13.AttachmentSupport = (doc.YZ_Plane, [""])
sketch13.MapMode = "FlatFace"
sketch13.AttachmentOffset = App.Placement(Vector(0, 0, 9), App.Rotation())
sketch13.addGeometry(Part.ArcOfCircle(Part.Circle(Vector(-43.8, 25.2, 0), Vector(0, 0, 1), 1.7), math.radians(45), math.radians(315)), False)
sketch13.addGeometry(Part.LineSegment(Vector(-42.5, 24, 0), Vector(-42, 24.5, 0)), False)
sketch13.addGeometry(Part.LineSegment(Vector(-42, 24.5, 0), Vector(-42, 25.9, 0)), False)
sketch13.addGeometry(Part.LineSegment(Vector(-42, 25.9, 0), Vector(-42.5, 26.4, 0)), False)
sketch13.addConstraint(Sketcher.Constraint("Tangent", 0, 2, 1, 1))
sketch13.addConstraint(Sketcher.Constraint("Coincident", 1, 2, 2, 1))
sketch13.addConstraint(Sketcher.Constraint("Coincident", 2, 2, 3, 1))
sketch13.addConstraint(Sketcher.Constraint("Tangent", 3, 2, 0, 1))
sketch13.addConstraint(Sketcher.Constraint("Vertical", 2))
sketch13.addConstraint(Sketcher.Constraint("Perpendicular", 1, 3))
sketch13.addConstraint(Sketcher.Constraint("Vertical", 0, 2, 3, 2))
sketch13.addConstraint(Sketcher.Constraint("Radius", 0, 1.75))
sketch13.addConstraint(Sketcher.Constraint("DistanceX", 1, 2, -1, 1, 42.0))
sketch13.addConstraint(Sketcher.Constraint("DistanceX", 0, 3, -1, 1, 43.75))
sketch13.addConstraint(Sketcher.Constraint("DistanceY", -1, 1, 2, 2, 25.928698))
pocket9 = doc.addObject("PartDesign::Pocket", "Pocket008")
body.addObject(pocket9)
pocket9.Profile = sketch13
pocket9.Length = 18

# Sketch on XZ plane
sketch14 = doc.addObject("Sketcher::SketchObject", "Sketch013")
body.addObject(sketch14)
sketch14.AttachmentSupport = (doc.XZ_Plane, [""])
sketch14.MapMode = "FlatFace"
sketch14.AttachmentOffset = App.Placement(Vector(0, 0, 47.5), App.Rotation())
add_polygon(sketch14, [(1.7, 45.9), (1.7, 1.7), (-1.7, 1.7), (-1.7, 45.9)])  # lines 0-3
sketch14.addConstraint(Sketcher.Constraint("Vertical", 0))
sketch14.addConstraint(Sketcher.Constraint("Horizontal", 1))
sketch14.addConstraint(Sketcher.Constraint("Vertical", 2))
sketch14.addConstraint(Sketcher.Constraint("Horizontal", 3))
sketch14.addConstraint(Sketcher.Constraint("DistanceX", 1, 2, 1, 1, 3.4))
sketch14.addConstraint(Sketcher.Constraint("DistanceX", -1, 1, 0, 2, 1.7))
sketch14.addConstraint(Sketcher.Constraint("DistanceY", 0, 2, 0, 1, 44.110421))
sketch14.addConstraint(Sketcher.Constraint("DistanceY", -1, 1, 0, 2, 1.749016))
pocket10 = doc.addObject("PartDesign::Pocket", "Pocket009")
body.addObject(pocket10)
pocket10.Profile = sketch14
pocket10.Length = 10

# Sketch on YZ plane
sketch15 = doc.addObject("Sketcher::SketchObject", "Sketch014")
body.addObject(sketch15)
sketch15.AttachmentSupport = (doc.YZ_Plane, [""])
sketch15.MapMode = "FlatFace"
sketch15.AttachmentOffset = App.Placement(Vector(0, 0, 9), App.Rotation())
add_polygon(sketch15, [(-40.9, 23.5), (-40.9, 26.9), (-43.8, 28.6), (-46.6, 26.9), (-46.6, 23.5), (-43.8, 21.9)])  # lines 0-5
sketch15.addConstraint(Sketcher.Constraint("Vertical", 0))
sketch15.addConstraint(Sketcher.Constraint("Vertical", 3))
sketch15.addConstraint(Sketcher.Constraint("Parallel", 1, 4))
sketch15.addConstraint(Sketcher.Constraint("Parallel", 2, 5))
sketch15.addConstraint(Sketcher.Constraint("Horizontal", 0, 2, 2, 2))
sketch15.addConstraint(Sketcher.Constraint("Horizontal", 3, 2, 5, 2))
sketch15.addConstraint(Sketcher.Constraint("Vertical", 1, 2, 4, 2))
sketch15.addConstraint(Sketcher.Constraint("Angle", 1, Q("149.999997 deg")))
sketch15.addConstraint(Sketcher.Constraint("DistanceX", 1, 2, 0, 2, 2.9))
sketch15.addConstraint(Sketcher.Constraint("DistanceX", 0, 2, -1, 1, 40.85))
sketch15.addConstraint(Sketcher.Constraint("DistanceY", 0, 1, 0, 2, 3.348631))
sketch15.addConstraint(Sketcher.Constraint("DistanceY", -1, 1, 0, 2, 26.87814))
pocket11 = doc.addObject("PartDesign::Pocket", "Pocket010")
body.addObject(pocket11)
pocket11.Profile = sketch15
pocket11.Length = 3.5

# Sketch on YZ plane
sketch16 = doc.addObject("Sketcher::SketchObject", "Sketch015")
body.addObject(sketch16)
sketch16.AttachmentSupport = (doc.YZ_Plane, [""])
sketch16.MapMode = "FlatFace"
sketch16.AttachmentOffset = App.Placement(Vector(0, 0, -9), App.Rotation())
sketch16.addGeometry(Part.Circle(Vector(-43.8, 25.2, 0), Vector(0, 0, 1), 3.2), False)
sketch16.addConstraint(Sketcher.Constraint("Diameter", 0, 6.4))
sketch16.addConstraint(Sketcher.Constraint("DistanceX", 0, 3, -1, 1, 43.75))
sketch16.addConstraint(Sketcher.Constraint("DistanceY", -1, 1, 0, 3, 25.203825))
pocket12 = doc.addObject("PartDesign::Pocket", "Pocket011")
body.addObject(pocket12)
pocket12.Profile = sketch16
pocket12.Length = 3.5
pocket12.Reversed = True
doc.recompute()

fillet6 = doc.addObject("PartDesign::Fillet", "Fillet005")
body.addObject(fillet6)
fillet6.Base = (pocket12, edges_at(pocket12, [(-5.35, -47.5, 19.659), (5.35, -47.5, 19.659)]))
fillet6.Radius = 4
doc.recompute()

fillet7 = doc.addObject("PartDesign::Fillet", "Fillet006")
body.addObject(fillet7)
fillet7.Base = (fillet6, edges_at(fillet6, [(5.35, -40, 19.659), (-5.35, -40, 19.659)]))
fillet7.Radius = 1

doc.recompute()
